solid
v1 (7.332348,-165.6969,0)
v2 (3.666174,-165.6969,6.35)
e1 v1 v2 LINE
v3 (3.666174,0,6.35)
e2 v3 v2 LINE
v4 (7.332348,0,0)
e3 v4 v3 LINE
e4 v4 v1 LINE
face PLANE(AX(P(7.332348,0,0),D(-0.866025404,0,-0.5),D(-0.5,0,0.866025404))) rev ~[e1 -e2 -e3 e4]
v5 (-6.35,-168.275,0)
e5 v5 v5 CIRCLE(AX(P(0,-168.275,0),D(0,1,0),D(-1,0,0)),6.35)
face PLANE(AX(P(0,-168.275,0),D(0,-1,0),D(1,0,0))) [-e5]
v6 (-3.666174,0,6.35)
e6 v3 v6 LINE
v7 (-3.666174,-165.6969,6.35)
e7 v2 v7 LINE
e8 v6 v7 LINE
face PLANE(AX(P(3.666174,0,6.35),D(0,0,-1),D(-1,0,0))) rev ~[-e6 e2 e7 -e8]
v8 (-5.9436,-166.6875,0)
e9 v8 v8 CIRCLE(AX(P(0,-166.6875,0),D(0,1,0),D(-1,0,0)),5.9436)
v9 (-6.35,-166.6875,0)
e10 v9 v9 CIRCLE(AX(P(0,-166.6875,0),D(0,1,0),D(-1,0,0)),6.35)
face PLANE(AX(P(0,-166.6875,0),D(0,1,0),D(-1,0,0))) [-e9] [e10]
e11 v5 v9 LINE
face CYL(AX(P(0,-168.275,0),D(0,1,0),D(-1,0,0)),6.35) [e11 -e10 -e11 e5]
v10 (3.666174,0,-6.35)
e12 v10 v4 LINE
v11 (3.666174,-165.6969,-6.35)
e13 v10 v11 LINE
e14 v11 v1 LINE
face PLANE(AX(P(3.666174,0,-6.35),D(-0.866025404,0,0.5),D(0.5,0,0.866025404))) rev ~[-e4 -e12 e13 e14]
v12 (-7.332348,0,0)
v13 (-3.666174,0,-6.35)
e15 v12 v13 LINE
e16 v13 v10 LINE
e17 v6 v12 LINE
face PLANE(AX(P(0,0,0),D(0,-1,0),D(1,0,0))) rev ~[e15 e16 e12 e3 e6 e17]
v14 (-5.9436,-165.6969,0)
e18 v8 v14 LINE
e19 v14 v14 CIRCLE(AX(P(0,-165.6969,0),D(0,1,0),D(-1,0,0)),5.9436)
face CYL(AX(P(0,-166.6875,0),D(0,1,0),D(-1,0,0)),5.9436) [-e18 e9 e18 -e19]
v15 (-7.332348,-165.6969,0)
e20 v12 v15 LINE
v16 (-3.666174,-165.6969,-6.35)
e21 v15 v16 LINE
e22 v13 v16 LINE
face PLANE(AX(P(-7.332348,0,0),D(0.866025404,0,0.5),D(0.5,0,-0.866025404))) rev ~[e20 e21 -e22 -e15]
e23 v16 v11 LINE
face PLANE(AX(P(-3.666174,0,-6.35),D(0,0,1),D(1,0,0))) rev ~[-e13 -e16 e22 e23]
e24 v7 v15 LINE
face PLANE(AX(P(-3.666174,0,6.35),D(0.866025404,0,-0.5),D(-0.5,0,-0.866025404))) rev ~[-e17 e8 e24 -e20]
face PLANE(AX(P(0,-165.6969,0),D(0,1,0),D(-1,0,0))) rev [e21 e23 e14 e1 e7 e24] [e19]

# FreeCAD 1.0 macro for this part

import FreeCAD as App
import Part
import Sketcher
Q = App.Units.Quantity

doc = App.newDocument("Part")
params = doc.addObject("Spreadsheet::Sheet", "Params")
for row, (alias, value) in enumerate([
    ("pad1_length", "6.625 in"),
    ("sketch2_width", "0.016 in"),
    ("sketch2_height", "0.0625 in"),
    ("sketch2_height2", "0.039 in"),
    ("groove_angle", "360 deg"),
], start=1):
    params.set(f"A{row}", alias)
    params.set(f"B{row}", "=" + value)
    params.setAlias(f"B{row}", alias)

body = doc.addObject("PartDesign::Body", "Body")

# Sketch on XZ plane
sketch1 = doc.addObject("Sketcher::SketchObject", "Sketch")
body.addObject(sketch1)
sketch1.AttachmentSupport = (doc.XZ_Plane, [""])
sketch1.MapMode = "FlatFace"
sketch1.addGeometry([
    Part.LineSegment(App.Vector(4, 6, 0), App.Vector(-4, 6, 0)),  # 0
    Part.LineSegment(App.Vector(-4, 6, 0), App.Vector(-7, 0, 0)),  # 1
    Part.LineSegment(App.Vector(-7, 0, 0), App.Vector(-4, -6, 0)),  # 2
    Part.LineSegment(App.Vector(-4, -6, 0), App.Vector(4, -6, 0)),  # 3
    Part.LineSegment(App.Vector(4, -6, 0), App.Vector(7, 0, 0)),  # 4
    Part.LineSegment(App.Vector(7, 0, 0), App.Vector(4, 6, 0)),  # 5
], False)
sketch1.addConstraint([
    Sketcher.Constraint("Coincident", 0, 2, 1, 1),
    Sketcher.Constraint("Coincident", 1, 2, 2, 1),
    Sketcher.Constraint("Coincident", 2, 2, 3, 1),
    Sketcher.Constraint("Coincident", 3, 2, 4, 1),
    Sketcher.Constraint("Coincident", 4, 2, 5, 1),
    Sketcher.Constraint("Coincident", 5, 2, 0, 1),
    Sketcher.Constraint("Horizontal", 0),
    Sketcher.Constraint("Horizontal", 3),
    Sketcher.Constraint("Symmetric", 0, 2, 3, 2, -1, 1),
    Sketcher.Constraint("Symmetric", 1, 2, 4, 2, -1, 1),
    Sketcher.Constraint("PointOnObject", 1, 2, -1),
    Sketcher.Constraint("Parallel", 2, 5),
    Sketcher.Constraint("Vertical", 0, 2, 2, 2),
    Sketcher.Constraint("Angle", 1, Q("-120 deg")),
    Sketcher.Constraint("DistanceY", 2, 2, 0, 2, Q("0.5 in")),
    Sketcher.Constraint("DistanceX", 0, 2, 0, 1, 7.332348),
])
pad1 = doc.addObject("PartDesign::Pad", "Pad")
body.addObject(pad1)
pad1.Profile = sketch1
pad1.setExpression("Length", "Params.pad1_length")

# Sketch on XY plane
sketch2 = doc.addObject("Sketcher::SketchObject", "Sketch001")
body.addObject(sketch2)
sketch2.AttachmentSupport = (doc.XY_Plane, [""])
sketch2.MapMode = "FlatFace"
sketch2.addGeometry([
    Part.LineSegment(App.Vector(-5.94, -165.7, 0), App.Vector(-7.33, -165.7, 0)),  # 0
    Part.LineSegment(App.Vector(-7.33, -165.7, 0), App.Vector(-7.33, -168.28, 0)),  # 1
    Part.LineSegment(App.Vector(-7.33, -168.28, 0), App.Vector(-6.35, -168.28, 0)),  # 2
    Part.LineSegment(App.Vector(-6.35, -168.28, 0), App.Vector(-6.35, -166.69, 0)),  # 3
    Part.LineSegment(App.Vector(-6.35, -166.69, 0), App.Vector(-5.94, -166.69, 0)),  # 4
    Part.LineSegment(App.Vector(-5.94, -166.69, 0), App.Vector(-5.94, -165.7, 0)),  # 5
], False)
sketch2.addConstraint([
    Sketcher.Constraint("Coincident", 0, 2, 1, 1),
    Sketcher.Constraint("Coincident", 1, 2, 2, 1),
    Sketcher.Constraint("Coincident", 2, 2, 3, 1),
    Sketcher.Constraint("Coincident", 3, 2, 4, 1),
    Sketcher.Constraint("Coincident", 4, 2, 5, 1),
    Sketcher.Constraint("Coincident", 5, 2, 0, 1),
    Sketcher.Constraint("Horizontal", 0),
    Sketcher.Constraint("Vertical", 1),
    Sketcher.Constraint("Horizontal", 2),
    Sketcher.Constraint("Vertical", 3),
    Sketcher.Constraint("Horizontal", 4),
    Sketcher.Constraint("Vertical", 5),
    Sketcher.Constraint("DistanceX", 4, 1, 4, 2, Q("0.016 in")),
    Sketcher.Constraint("DistanceY", 3, 1, 3, 2, Q("0.0625 in")),
    Sketcher.Constraint("DistanceY", 5, 1, 5, 2, Q("0.039 in")),
    Sketcher.Constraint("DistanceX", 2, 2, -1, 1, Q("0.25 in")),
    Sketcher.Constraint("DistanceY", 1, 2, -1, 1, Q("6.625 in")),
    Sketcher.Constraint("DistanceX", 0, 2, 0, 1, 1.388748),
])
sketch2.setExpression("Constraints[12]", "Params.sketch2_width")
sketch2.setExpression("Constraints[13]", "Params.sketch2_height")
sketch2.setExpression("Constraints[14]", "Params.sketch2_height2")
groove = doc.addObject("PartDesign::Groove", "Groove")
body.addObject(groove)
groove.Profile = sketch2
groove.ReferenceAxis = (sketch2, ["V_Axis"])
groove.setExpression("Angle", "Params.groove_angle")

doc.recompute()
